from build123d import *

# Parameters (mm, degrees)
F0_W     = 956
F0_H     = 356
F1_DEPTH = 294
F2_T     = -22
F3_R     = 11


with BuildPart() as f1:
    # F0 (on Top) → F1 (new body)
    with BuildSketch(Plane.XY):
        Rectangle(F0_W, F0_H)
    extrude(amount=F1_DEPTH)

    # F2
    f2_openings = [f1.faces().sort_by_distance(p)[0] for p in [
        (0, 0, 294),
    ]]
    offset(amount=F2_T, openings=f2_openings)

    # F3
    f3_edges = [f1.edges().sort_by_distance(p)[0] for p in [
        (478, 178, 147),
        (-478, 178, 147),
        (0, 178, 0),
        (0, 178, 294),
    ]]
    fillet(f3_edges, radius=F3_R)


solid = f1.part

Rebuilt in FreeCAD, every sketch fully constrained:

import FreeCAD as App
import Part
import Sketcher
from FreeCAD import Vector
Q = App.Units.Quantity


def edges_at(feature, points):
    """Names of the edges that pass closest to the given points."""
    edges = feature.Shape.Edges
    near = lambda p: min(range(len(edges)), key=lambda i: edges[i].distToShape(Part.Vertex(*p))[0])
    return sorted({f"Edge{near(p) + 1}" for p in points})


def faces_at(feature, points):
    """Names of the faces that lie closest to the given points."""
    faces = feature.Shape.Faces
    near = lambda p: min(range(len(faces)), key=lambda i: faces[i].distToShape(Part.Vertex(*p))[0])
    return sorted({f"Face{near(p) + 1}" for p in points})


def add_polygon(sketch, points):
    """Adds a closed chain of lines whose ends are joined by coincident constraints."""
    first, n = sketch.GeometryCount, len(points)
    for a, b in zip(points, points[1:] + points[:1]):
        sketch.addGeometry(Part.LineSegment(App.Vector(*a, 0), App.Vector(*b, 0)), False)
    for i in range(n):
        sketch.addConstraint(Sketcher.Constraint("Coincident", first + i, 2, first + (i + 1) % n, 1))

doc = App.newDocument("Part")
body = doc.addObject("PartDesign::Body", "Body")

sketch1 = body.newObject("Sketcher::SketchObject", "Sketch")
sketch1.AttachmentSupport = (doc.getObject("XY_Plane"), [""])
sketch1.MapMode = "FlatFace"
add_polygon(sketch1, [(-478, 178), (-478, -178), (478, -178), (478, 178)])
sketch1.addConstraint([
    Sketcher.Constraint("Vertical", 0),
    Sketcher.Constraint("Horizontal", 1),
    Sketcher.Constraint("Vertical", 2),
    Sketcher.Constraint("Horizontal", 3),
    Sketcher.Constraint("Symmetric", 0, 2, 2, 2, -1, 1),
    Sketcher.Constraint("DistanceX", 1, 1, 1, 2, Q("956 mm")),
    Sketcher.Constraint("DistanceY", 0, 2, 0, 1, Q("356 mm")),
])
pad1 = body.newObject("PartDesign::Pad", "Pad")
pad1.Profile = sketch1
pad1.Length = 294
doc.recompute()

thickness = body.newObject("PartDesign::Thickness", "Thickness")
thickness.Base = (pad1, faces_at(pad1, [(0, 0, 294)]))
thickness.Value = 22
thickness.Reversed = True
thickness.Join = "Arc"
doc.recompute()

fillet = body.newObject("PartDesign::Fillet", "Fillet")
fillet.Base = (thickness, edges_at(thickness, [
    (478, 178, 147),
    (-478, 178, 147),
    (0, 178, 0),
    (0, 178, 294),
]))
fillet.Radius = 11

doc.recompute()
